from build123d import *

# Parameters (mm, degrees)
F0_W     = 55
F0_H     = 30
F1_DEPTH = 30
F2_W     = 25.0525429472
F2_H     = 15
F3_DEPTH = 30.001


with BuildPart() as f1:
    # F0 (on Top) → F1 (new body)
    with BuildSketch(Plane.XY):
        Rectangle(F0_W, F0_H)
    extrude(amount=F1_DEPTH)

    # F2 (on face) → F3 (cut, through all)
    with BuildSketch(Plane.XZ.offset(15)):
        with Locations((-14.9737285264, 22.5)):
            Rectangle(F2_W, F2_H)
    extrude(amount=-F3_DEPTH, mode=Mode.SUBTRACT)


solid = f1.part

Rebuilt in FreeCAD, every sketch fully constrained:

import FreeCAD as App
import Part
import Sketcher

V = App.Vector


def add_polygon(sketch, points):
    """Adds a closed chain of lines whose ends are joined by coincident constraints."""
    first, n = sketch.GeometryCount, len(points)
    for a, b in zip(points, points[1:] + points[:1]):
        sketch.addGeometry(Part.LineSegment(App.Vector(*a, 0), App.Vector(*b, 0)), False)
    for i in range(n):
        sketch.addConstraint(Sketcher.Constraint("Coincident", first + i, 2, first + (i + 1) % n, 1))

doc = App.newDocument("Part")
body = doc.addObject("PartDesign::Body", "Body")

# Sketch on XY plane
sketch1 = doc.addObject("Sketcher::SketchObject", "Sketch")
body.addObject(sketch1)
sketch1.AttachmentSupport = (doc.XY_Plane, [""])
sketch1.MapMode = "FlatFace"
add_polygon(sketch1, [(-28, 15), (-28, -15), (28, -15), (28, 15)])  # lines 0-3
sketch1.addConstraint([
    Sketcher.Constraint("Vertical", 0),
    Sketcher.Constraint("Horizontal", 1),
    Sketcher.Constraint("Vertical", 2),
    Sketcher.Constraint("Horizontal", 3),
    Sketcher.Constraint("Symmetric", 0, 2, 2, 2, -1, 1),
    Sketcher.Constraint("DistanceX", 1, 1, 1, 2, 55.0),
    Sketcher.Constraint("DistanceY", 0, 2, 0, 1, 30.0),
])
pad1 = doc.addObject("PartDesign::Pad", "Pad")
body.addObject(pad1)
pad1.Profile = sketch1
pad1.Length = 30

# Sketch on XZ plane
sketch2 = doc.addObject("Sketcher::SketchObject", "Sketch001")
body.addObject(sketch2)
sketch2.AttachmentSupport = (doc.XZ_Plane, [""])
sketch2.MapMode = "FlatFace"
sketch2.AttachmentOffset = App.Placement(V(0, 0, 15), App.Rotation())
add_polygon(sketch2, [(-28, 30), (-28, 15), (-2, 15), (-2, 30)])  # lines 0-3
sketch2.addConstraint([
    Sketcher.Constraint("Vertical", 0),
    Sketcher.Constraint("Horizontal", 1),
    Sketcher.Constraint("Vertical", 2),
    Sketcher.Constraint("Horizontal", 3),
    Sketcher.Constraint("DistanceY", 0, 2, 0, 1, 15.0),
    Sketcher.Constraint("DistanceY", -1, 1, 0, 2, 15.0),
    Sketcher.Constraint("DistanceX", 0, 2, -1, 1, 27.5),
    Sketcher.Constraint("DistanceX", 1, 1, 1, 2, 25.052543),
])
pocket1 = doc.addObject("PartDesign::Pocket", "Pocket")
body.addObject(pocket1)
pocket1.Profile = sketch2
pocket1.Type = "ThroughAll"

doc.recompute()
